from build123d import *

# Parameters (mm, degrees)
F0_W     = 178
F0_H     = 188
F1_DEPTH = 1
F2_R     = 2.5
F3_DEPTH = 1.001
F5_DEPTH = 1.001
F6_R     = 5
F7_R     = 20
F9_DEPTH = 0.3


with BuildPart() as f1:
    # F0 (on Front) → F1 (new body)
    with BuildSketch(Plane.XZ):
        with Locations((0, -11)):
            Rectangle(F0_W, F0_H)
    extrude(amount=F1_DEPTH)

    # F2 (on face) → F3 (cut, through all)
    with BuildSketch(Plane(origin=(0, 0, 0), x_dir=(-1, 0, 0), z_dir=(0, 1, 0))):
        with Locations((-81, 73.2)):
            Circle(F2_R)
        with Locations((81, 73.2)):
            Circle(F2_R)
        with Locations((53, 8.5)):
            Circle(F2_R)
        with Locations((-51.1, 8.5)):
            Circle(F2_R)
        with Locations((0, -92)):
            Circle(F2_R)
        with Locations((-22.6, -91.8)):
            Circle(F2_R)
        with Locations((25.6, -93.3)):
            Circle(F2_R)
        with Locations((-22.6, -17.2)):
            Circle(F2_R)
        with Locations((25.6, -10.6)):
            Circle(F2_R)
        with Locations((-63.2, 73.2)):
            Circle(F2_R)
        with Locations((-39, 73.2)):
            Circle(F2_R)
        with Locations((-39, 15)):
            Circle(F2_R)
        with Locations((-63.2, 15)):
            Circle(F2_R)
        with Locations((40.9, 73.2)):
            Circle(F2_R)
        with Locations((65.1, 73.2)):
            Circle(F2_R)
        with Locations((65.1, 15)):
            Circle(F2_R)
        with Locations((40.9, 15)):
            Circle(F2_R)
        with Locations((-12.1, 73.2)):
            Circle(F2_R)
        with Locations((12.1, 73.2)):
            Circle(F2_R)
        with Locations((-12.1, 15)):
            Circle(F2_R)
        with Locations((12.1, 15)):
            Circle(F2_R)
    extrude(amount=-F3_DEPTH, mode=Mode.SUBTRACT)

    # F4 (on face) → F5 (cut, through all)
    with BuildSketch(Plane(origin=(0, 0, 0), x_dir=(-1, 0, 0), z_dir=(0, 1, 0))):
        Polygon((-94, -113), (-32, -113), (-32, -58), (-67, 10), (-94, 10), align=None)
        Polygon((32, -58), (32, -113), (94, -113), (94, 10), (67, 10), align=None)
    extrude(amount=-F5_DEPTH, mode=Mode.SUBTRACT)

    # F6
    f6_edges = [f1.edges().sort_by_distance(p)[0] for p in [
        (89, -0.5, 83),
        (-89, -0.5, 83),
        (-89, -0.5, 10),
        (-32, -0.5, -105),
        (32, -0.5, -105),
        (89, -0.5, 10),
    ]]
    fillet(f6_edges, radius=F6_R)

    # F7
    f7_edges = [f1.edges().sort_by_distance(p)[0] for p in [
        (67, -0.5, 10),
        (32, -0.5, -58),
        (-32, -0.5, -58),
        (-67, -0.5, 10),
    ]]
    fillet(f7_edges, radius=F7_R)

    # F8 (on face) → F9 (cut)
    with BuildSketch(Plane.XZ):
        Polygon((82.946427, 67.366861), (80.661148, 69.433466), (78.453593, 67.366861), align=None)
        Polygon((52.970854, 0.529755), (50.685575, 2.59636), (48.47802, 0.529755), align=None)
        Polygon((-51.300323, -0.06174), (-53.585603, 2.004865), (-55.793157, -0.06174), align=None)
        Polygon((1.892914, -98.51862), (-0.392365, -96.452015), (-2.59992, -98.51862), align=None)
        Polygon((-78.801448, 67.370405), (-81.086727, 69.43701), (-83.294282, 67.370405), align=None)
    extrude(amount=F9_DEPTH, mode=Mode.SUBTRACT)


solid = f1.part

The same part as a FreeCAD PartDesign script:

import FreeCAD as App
import Part
import Sketcher
Q = App.Units.Quantity


def edges_at(feature, points):
    """Names of the edges that pass closest to the given points."""
    edges = feature.Shape.Edges
    near = lambda p: min(range(len(edges)), key=lambda i: edges[i].distToShape(Part.Vertex(*p))[0])
    return sorted({f"Edge{near(p) + 1}" for p in points})

doc = App.newDocument("Part")
body = doc.addObject("PartDesign::Body", "Body")

sketch1 = body.newObject("Sketcher::SketchObject", "Sketch")
sketch1.AttachmentSupport = (doc.getObject("XZ_Plane"), [""])
sketch1.MapMode = "FlatFace"
sketch1.addGeometry(Part.LineSegment(App.Vector(-89, 83, 0), App.Vector(-89, -105, 0)), False)
sketch1.addGeometry(Part.LineSegment(App.Vector(-89, -105, 0), App.Vector(89, -105, 0)), False)
sketch1.addGeometry(Part.LineSegment(App.Vector(89, -105, 0), App.Vector(89, 83, 0)), False)
sketch1.addGeometry(Part.LineSegment(App.Vector(89, 83, 0), App.Vector(-89, 83, 0)), False)
sketch1.addConstraint(Sketcher.Constraint("Coincident", 0, 2, 1, 1))
sketch1.addConstraint(Sketcher.Constraint("Coincident", 1, 2, 2, 1))
sketch1.addConstraint(Sketcher.Constraint("Coincident", 2, 2, 3, 1))
sketch1.addConstraint(Sketcher.Constraint("Coincident", 3, 2, 0, 1))
sketch1.addConstraint(Sketcher.Constraint("Vertical", 0))
sketch1.addConstraint(Sketcher.Constraint("Horizontal", 1))
sketch1.addConstraint(Sketcher.Constraint("Vertical", 2))
sketch1.addConstraint(Sketcher.Constraint("Horizontal", 3))
sketch1.addConstraint(Sketcher.Constraint("DistanceX", 1, 1, 1, 2, Q("178 mm")))
sketch1.addConstraint(Sketcher.Constraint("DistanceY", 0, 2, 0, 1, Q("188 mm")))
sketch1.addConstraint(Sketcher.Constraint("DistanceX", 0, 2, -1, 1, Q("89 mm")))
sketch1.addConstraint(Sketcher.Constraint("DistanceY", 0, 2, -1, 1, Q("105 mm")))
pad1 = body.newObject("PartDesign::Pad", "Pad")
pad1.Profile = sketch1
pad1.Length = 1

sketch2 = body.newObject("Sketcher::SketchObject", "Sketch001")
sketch2.AttachmentSupport = (doc.getObject("XZ_Plane"), [""])
sketch2.MapMode = "FlatFace"
sketch2.addGeometry(Part.Circle(App.Vector(81, 73.2, 0), App.Vector(0, 0, 1), 2.5), False)
sketch2.addGeometry(Part.Circle(App.Vector(-81, 73.2, 0), App.Vector(0, 0, 1), 2.5), False)
sketch2.addGeometry(Part.Circle(App.Vector(-53, 8.5, 0), App.Vector(0, 0, 1), 2.5), False)
sketch2.addGeometry(Part.Circle(App.Vector(51.1, 8.5, 0), App.Vector(0, 0, 1), 2.5), False)
sketch2.addGeometry(Part.Circle(App.Vector(0, -92, 0), App.Vector(0, 0, 1), 2.5), False)
sketch2.addGeometry(Part.Circle(App.Vector(22.6, -91.8, 0), App.Vector(0, 0, 1), 2.5), False)
sketch2.addGeometry(Part.Circle(App.Vector(-25.6, -93.3, 0), App.Vector(0, 0, 1), 2.5), False)
sketch2.addGeometry(Part.Circle(App.Vector(22.6, -17.2, 0), App.Vector(0, 0, 1), 2.5), False)
sketch2.addGeometry(Part.Circle(App.Vector(-25.6, -10.6, 0), App.Vector(0, 0, 1), 2.5), False)
sketch2.addGeometry(Part.Circle(App.Vector(63.2, 73.2, 0), App.Vector(0, 0, 1), 2.5), False)
sketch2.addGeometry(Part.Circle(App.Vector(39, 73.2, 0), App.Vector(0, 0, 1), 2.5), False)
sketch2.addGeometry(Part.Circle(App.Vector(39, 15, 0), App.Vector(0, 0, 1), 2.5), False)
sketch2.addGeometry(Part.Circle(App.Vector(63.2, 15, 0), App.Vector(0, 0, 1), 2.5), False)
sketch2.addGeometry(Part.Circle(App.Vector(-40.9, 73.2, 0), App.Vector(0, 0, 1), 2.5), False)
sketch2.addGeometry(Part.Circle(App.Vector(-65.1, 73.2, 0), App.Vector(0, 0, 1), 2.5), False)
sketch2.addGeometry(Part.Circle(App.Vector(-65.1, 15, 0), App.Vector(0, 0, 1), 2.5), False)
sketch2.addGeometry(Part.Circle(App.Vector(-40.9, 15, 0), App.Vector(0, 0, 1), 2.5), False)
sketch2.addGeometry(Part.Circle(App.Vector(12.1, 73.2, 0), App.Vector(0, 0, 1), 2.5), False)
sketch2.addGeometry(Part.Circle(App.Vector(-12.1, 73.2, 0), App.Vector(0, 0, 1), 2.5), False)
sketch2.addGeometry(Part.Circle(App.Vector(12.1, 15, 0), App.Vector(0, 0, 1), 2.5), False)
sketch2.addGeometry(Part.Circle(App.Vector(-12.1, 15, 0), App.Vector(0, 0, 1), 2.5), False)
sketch2.addConstraint(Sketcher.Constraint("Equal", 0, 1))
sketch2.addConstraint(Sketcher.Constraint("Equal", 1, 2))
sketch2.addConstraint(Sketcher.Constraint("Equal", 2, 3))
sketch2.addConstraint(Sketcher.Constraint("Equal", 3, 4))
sketch2.addConstraint(Sketcher.Constraint("Equal", 4, 5))
sketch2.addConstraint(Sketcher.Constraint("Equal", 5, 6))
sketch2.addConstraint(Sketcher.Constraint("Equal", 6, 7))
sketch2.addConstraint(Sketcher.Constraint("Equal", 7, 8))
sketch2.addConstraint(Sketcher.Constraint("Equal", 8, 9))
sketch2.addConstraint(Sketcher.Constraint("Equal", 9, 10))
sketch2.addConstraint(Sketcher.Constraint("Equal", 10, 11))
sketch2.addConstraint(Sketcher.Constraint("Equal", 11, 12))
sketch2.addConstraint(Sketcher.Constraint("Equal", 12, 13))
sketch2.addConstraint(Sketcher.Constraint("Equal", 13, 14))
sketch2.addConstraint(Sketcher.Constraint("Equal", 14, 15))
sketch2.addConstraint(Sketcher.Constraint("Equal", 15, 16))
sketch2.addConstraint(Sketcher.Constraint("Equal", 16, 17))
sketch2.addConstraint(Sketcher.Constraint("Equal", 17, 18))
sketch2.addConstraint(Sketcher.Constraint("Equal", 18, 19))
sketch2.addConstraint(Sketcher.Constraint("Equal", 19, 20))
sketch2.addConstraint(Sketcher.Constraint("Symmetric", 0, 3, 1, 3, -2))
sketch2.addConstraint(Sketcher.Constraint("Symmetric", 17, 3, 18, 3, -2))
sketch2.addConstraint(Sketcher.Constraint("Symmetric", 19, 3, 20, 3, -2))
sketch2.addConstraint(Sketcher.Constraint("PointOnObject", 4, 3, -2))
sketch2.addConstraint(Sketcher.Constraint("Horizontal", 2, 3, 3, 3))
sketch2.addConstraint(Sketcher.Constraint("Horizontal", 1, 3, 9, 3))
sketch2.addConstraint(Sketcher.Constraint("Horizontal", 9, 3, 10, 3))
sketch2.addConstraint(Sketcher.Constraint("Horizontal", 11, 3, 12, 3))
sketch2.addConstraint(Sketcher.Constraint("Horizontal", 10, 3, 13, 3))
sketch2.addConstraint(Sketcher.Constraint("Horizontal", 13, 3, 14, 3))
sketch2.addConstraint(Sketcher.Constraint("Horizontal", 12, 3, 15, 3))
sketch2.addConstraint(Sketcher.Constraint("Horizontal", 15, 3, 16, 3))
sketch2.addConstraint(Sketcher.Constraint("Horizontal", 14, 3, 17, 3))
sketch2.addConstraint(Sketcher.Constraint("Horizontal", 16, 3, 19, 3))
sketch2.addConstraint(Sketcher.Constraint("Vertical", 5, 3, 7, 3))
sketch2.addConstraint(Sketcher.Constraint("Vertical", 6, 3, 8, 3))
sketch2.addConstraint(Sketcher.Constraint("Vertical", 10, 3, 11, 3))
sketch2.addConstraint(Sketcher.Constraint("Vertical", 9, 3, 12, 3))
sketch2.addConstraint(Sketcher.Constraint("Vertical", 14, 3, 15, 3))
sketch2.addConstraint(Sketcher.Constraint("Vertical", 13, 3, 16, 3))
sketch2.addConstraint(Sketcher.Constraint("Vertical", 17, 3, 19, 3))
sketch2.addConstraint(Sketcher.Constraint("Diameter", 0, Q("5 mm")))
sketch2.addConstraint(Sketcher.Constraint("DistanceX", -1, 1, 0, 3, Q("81 mm")))
sketch2.addConstraint(Sketcher.Constraint("DistanceX", 2, 3, -1, 1, Q("53 mm")))
sketch2.addConstraint(Sketcher.Constraint("DistanceY", 4, 3, -1, 1, Q("92 mm")))
sketch2.addConstraint(Sketcher.Constraint("DistanceX", -1, 1, 10, 3, Q("39 mm")))
sketch2.addConstraint(Sketcher.Constraint("DistanceY", -1, 1, 11, 3, Q("15 mm")))
sketch2.addConstraint(Sketcher.Constraint("DistanceY", 5, 3, 0, 3, Q("165 mm")))
sketch2.addConstraint(Sketcher.Constraint("DistanceX", 13, 3, 17, 3, Q("53 mm")))
sketch2.addConstraint(Sketcher.Constraint("DistanceX", 14, 3, 18, 3, Q("53 mm")))
sketch2.addConstraint(Sketcher.Constraint("DistanceX", 19, 3, 3, 3, Q("39 mm")))
sketch2.addConstraint(Sketcher.Constraint("DistanceY", -1, 1, 0, 3, Q("73.2 mm")))
sketch2.addConstraint(Sketcher.Constraint("DistanceY", -1, 1, 2, 3, Q("8.5 mm")))
sketch2.addConstraint(Sketcher.Constraint("DistanceX", -1, 1, 3, 3, Q("51.1 mm")))
sketch2.addConstraint(Sketcher.Constraint("DistanceX", -1, 1, 5, 3, Q("22.6 mm")))
sketch2.addConstraint(Sketcher.Constraint("DistanceX", 6, 3, -1, 1, Q("25.6 mm")))
sketch2.addConstraint(Sketcher.Constraint("DistanceY", 6, 3, -1, 1, Q("93.3 mm")))
sketch2.addConstraint(Sketcher.Constraint("DistanceY", 7, 3, -1, 1, Q("17.2 mm")))
sketch2.addConstraint(Sketcher.Constraint("DistanceY", 8, 3, -1, 1, Q("10.6 mm")))
sketch2.addConstraint(Sketcher.Constraint("DistanceX", -1, 1, 9, 3, Q("63.2 mm")))
pocket1 = body.newObject("PartDesign::Pocket", "Pocket")
pocket1.Profile = sketch2
pocket1.Type = "ThroughAll"
pocket1.Reversed = True

sketch3 = body.newObject("Sketcher::SketchObject", "Sketch002")
sketch3.AttachmentSupport = (doc.getObject("XZ_Plane"), [""])
sketch3.MapMode = "FlatFace"
sketch3.addGeometry(Part.LineSegment(App.Vector(94, -113, 0), App.Vector(32, -113, 0)), False)
sketch3.addGeometry(Part.LineSegment(App.Vector(32, -113, 0), App.Vector(32, -58, 0)), False)
sketch3.addGeometry(Part.LineSegment(App.Vector(32, -58, 0), App.Vector(67, 10, 0)), False)
sketch3.addGeometry(Part.LineSegment(App.Vector(67, 10, 0), App.Vector(94, 10, 0)), False)
sketch3.addGeometry(Part.LineSegment(App.Vector(94, 10, 0), App.Vector(94, -113, 0)), False)
sketch3.addGeometry(Part.LineSegment(App.Vector(-32, -58, 0), App.Vector(-32, -113, 0)), False)
sketch3.addGeometry(Part.LineSegment(App.Vector(-32, -113, 0), App.Vector(-94, -113, 0)), False)
sketch3.addGeometry(Part.LineSegment(App.Vector(-94, -113, 0), App.Vector(-94, 10, 0)), False)
sketch3.addGeometry(Part.LineSegment(App.Vector(-94, 10, 0), App.Vector(-67, 10, 0)), False)
sketch3.addGeometry(Part.LineSegment(App.Vector(-67, 10, 0), App.Vector(-32, -58, 0)), False)
sketch3.addConstraint(Sketcher.Constraint("Coincident", 0, 2, 1, 1))
sketch3.addConstraint(Sketcher.Constraint("Coincident", 1, 2, 2, 1))
sketch3.addConstraint(Sketcher.Constraint("Coincident", 2, 2, 3, 1))
sketch3.addConstraint(Sketcher.Constraint("Coincident", 3, 2, 4, 1))
sketch3.addConstraint(Sketcher.Constraint("Coincident", 4, 2, 0, 1))
sketch3.addConstraint(Sketcher.Constraint("Coincident", 5, 2, 6, 1))
sketch3.addConstraint(Sketcher.Constraint("Coincident", 6, 2, 7, 1))
sketch3.addConstraint(Sketcher.Constraint("Coincident", 7, 2, 8, 1))
sketch3.addConstraint(Sketcher.Constraint("Coincident", 8, 2, 9, 1))
sketch3.addConstraint(Sketcher.Constraint("Coincident", 9, 2, 5, 1))
sketch3.addConstraint(Sketcher.Constraint("Horizontal", 0))
sketch3.addConstraint(Sketcher.Constraint("Vertical", 1))
sketch3.addConstraint(Sketcher.Constraint("Horizontal", 3))
sketch3.addConstraint(Sketcher.Constraint("Vertical", 4))
sketch3.addConstraint(Sketcher.Constraint("Vertical", 5))
sketch3.addConstraint(Sketcher.Constraint("Horizontal", 6))
sketch3.addConstraint(Sketcher.Constraint("Vertical", 7))
sketch3.addConstraint(Sketcher.Constraint("Horizontal", 8))
sketch3.addConstraint(Sketcher.Constraint("Symmetric", 0, 2, 5, 2, -2))
sketch3.addConstraint(Sketcher.Constraint("Symmetric", 3, 2, 7, 2, -2))
sketch3.addConstraint(Sketcher.Constraint("Horizontal", 1, 2, 9, 2))
sketch3.addConstraint(Sketcher.Constraint("Equal", 3, 8))
sketch3.addConstraint(Sketcher.Constraint("DistanceX", 0, 2, 0, 1, Q("62 mm")))
sketch3.addConstraint(Sketcher.Constraint("DistanceX", 3, 1, 3, 2, Q("27 mm")))
sketch3.addConstraint(Sketcher.Constraint("DistanceY", 1, 1, 1, 2, Q("55 mm")))
sketch3.addConstraint(Sketcher.Constraint("DistanceY", 4, 2, 4, 1, Q("123 mm")))
sketch3.addConstraint(Sketcher.Constraint("DistanceX", -1, 1, 0, 2, Q("32 mm")))
sketch3.addConstraint(Sketcher.Constraint("DistanceY", 0, 2, -1, 1, Q("113 mm")))
pocket2 = body.newObject("PartDesign::Pocket", "Pocket001")
pocket2.Profile = sketch3
pocket2.Type = "ThroughAll"
pocket2.Reversed = True
doc.recompute()

fillet = body.newObject("PartDesign::Fillet", "Fillet")
fillet.Base = (pocket2, edges_at(pocket2, [
    (89, -0.5, 83),
    (-89, -0.5, 83),
    (-89, -0.5, 10),
    (-32, -0.5, -105),
    (32, -0.5, -105),
    (89, -0.5, 10),
]))
fillet.Radius = 5
doc.recompute()

fillet2 = body.newObject("PartDesign::Fillet", "Fillet001")
fillet2.Base = (fillet, edges_at(fillet, [
    (67, -0.5, 10),
    (32, -0.5, -58),
    (-32, -0.5, -58),
    (-67, -0.5, 10),
]))
fillet2.Radius = 20

sketch4 = body.newObject("Sketcher::SketchObject", "Sketch003")
sketch4.AttachmentSupport = (doc.getObject("XZ_Plane"), [""])
sketch4.MapMode = "FlatFace"
sketch4.addGeometry(Part.LineSegment(App.Vector(82.9, 67.4, 0), App.Vector(80.7, 69.4, 0)), False)
sketch4.addGeometry(Part.LineSegment(App.Vector(80.7, 69.4, 0), App.Vector(78.5, 67.4, 0)), False)
sketch4.addGeometry(Part.LineSegment(App.Vector(78.5, 67.4, 0), App.Vector(82.9, 67.4, 0)), False)
sketch4.addGeometry(Part.LineSegment(App.Vector(53, 0.5, 0), App.Vector(50.7, 2.6, 0)), False)
sketch4.addGeometry(Part.LineSegment(App.Vector(50.7, 2.6, 0), App.Vector(48.5, 0.5, 0)), False)
sketch4.addGeometry(Part.LineSegment(App.Vector(48.5, 0.5, 0), App.Vector(53, 0.5, 0)), False)
sketch4.addGeometry(Part.LineSegment(App.Vector(-51.3, -0.1, 0), App.Vector(-53.6, 2, 0)), False)
sketch4.addGeometry(Part.LineSegment(App.Vector(-53.6, 2, 0), App.Vector(-55.8, -0.1, 0)), False)
sketch4.addGeometry(Part.LineSegment(App.Vector(-55.8, -0.1, 0), App.Vector(-51.3, -0.1, 0)), False)
sketch4.addGeometry(Part.LineSegment(App.Vector(1.9, -98.5, 0), App.Vector(-0.4, -96.5, 0)), False)
sketch4.addGeometry(Part.LineSegment(App.Vector(-0.4, -96.5, 0), App.Vector(-2.6, -98.5, 0)), False)
sketch4.addGeometry(Part.LineSegment(App.Vector(-2.6, -98.5, 0), App.Vector(1.9, -98.5, 0)), False)
sketch4.addGeometry(Part.LineSegment(App.Vector(-78.8, 67.4, 0), App.Vector(-81.1, 69.4, 0)), False)
sketch4.addGeometry(Part.LineSegment(App.Vector(-81.1, 69.4, 0), App.Vector(-83.3, 67.4, 0)), False)
sketch4.addGeometry(Part.LineSegment(App.Vector(-83.3, 67.4, 0), App.Vector(-78.8, 67.4, 0)), False)
sketch4.addConstraint(Sketcher.Constraint("Coincident", 0, 2, 1, 1))
sketch4.addConstraint(Sketcher.Constraint("Coincident", 1, 2, 2, 1))
sketch4.addConstraint(Sketcher.Constraint("Coincident", 2, 2, 0, 1))
sketch4.addConstraint(Sketcher.Constraint("Coincident", 3, 2, 4, 1))
sketch4.addConstraint(Sketcher.Constraint("Coincident", 4, 2, 5, 1))
sketch4.addConstraint(Sketcher.Constraint("Coincident", 5, 2, 3, 1))
sketch4.addConstraint(Sketcher.Constraint("Coincident", 6, 2, 7, 1))
sketch4.addConstraint(Sketcher.Constraint("Coincident", 7, 2, 8, 1))
sketch4.addConstraint(Sketcher.Constraint("Coincident", 8, 2, 6, 1))
sketch4.addConstraint(Sketcher.Constraint("Coincident", 9, 2, 10, 1))
sketch4.addConstraint(Sketcher.Constraint("Coincident", 10, 2, 11, 1))
sketch4.addConstraint(Sketcher.Constraint("Coincident", 11, 2, 9, 1))
sketch4.addConstraint(Sketcher.Constraint("Coincident", 12, 2, 13, 1))
sketch4.addConstraint(Sketcher.Constraint("Coincident", 13, 2, 14, 1))
sketch4.addConstraint(Sketcher.Constraint("Coincident", 14, 2, 12, 1))
sketch4.addConstraint(Sketcher.Constraint("Horizontal", 2))
sketch4.addConstraint(Sketcher.Constraint("Horizontal", 5))
sketch4.addConstraint(Sketcher.Constraint("Horizontal", 8))
sketch4.addConstraint(Sketcher.Constraint("Horizontal", 11))
sketch4.addConstraint(Sketcher.Constraint("Horizontal", 14))
sketch4.addConstraint(Sketcher.Constraint("Parallel", 0, 3))
sketch4.addConstraint(Sketcher.Constraint("Parallel", 1, 4))
sketch4.addConstraint(Sketcher.Constraint("Parallel", 3, 6))
sketch4.addConstraint(Sketcher.Constraint("Parallel", 4, 7))
sketch4.addConstraint(Sketcher.Constraint("Parallel", 6, 9))
sketch4.addConstraint(Sketcher.Constraint("Parallel", 7, 10))
sketch4.addConstraint(Sketcher.Constraint("Parallel", 9, 12))
sketch4.addConstraint(Sketcher.Constraint("Parallel", 10, 13))
sketch4.addConstraint(Sketcher.Constraint("Equal", 2, 5))
sketch4.addConstraint(Sketcher.Constraint("Equal", 5, 8))
sketch4.addConstraint(Sketcher.Constraint("Equal", 8, 11))
sketch4.addConstraint(Sketcher.Constraint("Equal", 11, 14))
sketch4.addConstraint(Sketcher.Constraint("DistanceY", 3, 2, 1, 2, Q("64.770501 mm")))
sketch4.addConstraint(Sketcher.Constraint("DistanceY", 6, 2, 0, 2, Q("67.428601 mm")))
sketch4.addConstraint(Sketcher.Constraint("DistanceX", 12, 2, 3, 2, Q("131.772302 mm")))
sketch4.addConstraint(Sketcher.Constraint("Distance", 0, Q("3.081129 mm")))
sketch4.addConstraint(Sketcher.Constraint("Distance", 1, Q("3.02393 mm")))
sketch4.addConstraint(Sketcher.Constraint("DistanceX", 2, 1, 2, 2, Q("4.492834 mm")))
sketch4.addConstraint(Sketcher.Constraint("DistanceY", -1, 1, 1, 2, Q("67.366861 mm")))
sketch4.addConstraint(Sketcher.Constraint("DistanceX", -1, 1, 4, 2, Q("48.47802 mm")))
sketch4.addConstraint(Sketcher.Constraint("DistanceX", 10, 2, -1, 1, Q("2.59992 mm")))
sketch4.addConstraint(Sketcher.Constraint("DistanceY", 10, 2, -1, 1, Q("98.51862 mm")))
sketch4.addConstraint(Sketcher.Constraint("DistanceY", -1, 1, 12, 2, Q("69.43701 mm")))
sketch4.addConstraint(Sketcher.Constraint("DistanceX", 5, 2, 1, 2, Q("25.482739 mm")))
sketch4.addConstraint(Sketcher.Constraint("DistanceX", 6, 2, 0, 2, Q("134.246751 mm")))
pocket3 = body.newObject("PartDesign::Pocket", "Pocket002")
pocket3.Profile = sketch4
pocket3.Length = 0.3
pocket3.Reversed = True

doc.recompute()
